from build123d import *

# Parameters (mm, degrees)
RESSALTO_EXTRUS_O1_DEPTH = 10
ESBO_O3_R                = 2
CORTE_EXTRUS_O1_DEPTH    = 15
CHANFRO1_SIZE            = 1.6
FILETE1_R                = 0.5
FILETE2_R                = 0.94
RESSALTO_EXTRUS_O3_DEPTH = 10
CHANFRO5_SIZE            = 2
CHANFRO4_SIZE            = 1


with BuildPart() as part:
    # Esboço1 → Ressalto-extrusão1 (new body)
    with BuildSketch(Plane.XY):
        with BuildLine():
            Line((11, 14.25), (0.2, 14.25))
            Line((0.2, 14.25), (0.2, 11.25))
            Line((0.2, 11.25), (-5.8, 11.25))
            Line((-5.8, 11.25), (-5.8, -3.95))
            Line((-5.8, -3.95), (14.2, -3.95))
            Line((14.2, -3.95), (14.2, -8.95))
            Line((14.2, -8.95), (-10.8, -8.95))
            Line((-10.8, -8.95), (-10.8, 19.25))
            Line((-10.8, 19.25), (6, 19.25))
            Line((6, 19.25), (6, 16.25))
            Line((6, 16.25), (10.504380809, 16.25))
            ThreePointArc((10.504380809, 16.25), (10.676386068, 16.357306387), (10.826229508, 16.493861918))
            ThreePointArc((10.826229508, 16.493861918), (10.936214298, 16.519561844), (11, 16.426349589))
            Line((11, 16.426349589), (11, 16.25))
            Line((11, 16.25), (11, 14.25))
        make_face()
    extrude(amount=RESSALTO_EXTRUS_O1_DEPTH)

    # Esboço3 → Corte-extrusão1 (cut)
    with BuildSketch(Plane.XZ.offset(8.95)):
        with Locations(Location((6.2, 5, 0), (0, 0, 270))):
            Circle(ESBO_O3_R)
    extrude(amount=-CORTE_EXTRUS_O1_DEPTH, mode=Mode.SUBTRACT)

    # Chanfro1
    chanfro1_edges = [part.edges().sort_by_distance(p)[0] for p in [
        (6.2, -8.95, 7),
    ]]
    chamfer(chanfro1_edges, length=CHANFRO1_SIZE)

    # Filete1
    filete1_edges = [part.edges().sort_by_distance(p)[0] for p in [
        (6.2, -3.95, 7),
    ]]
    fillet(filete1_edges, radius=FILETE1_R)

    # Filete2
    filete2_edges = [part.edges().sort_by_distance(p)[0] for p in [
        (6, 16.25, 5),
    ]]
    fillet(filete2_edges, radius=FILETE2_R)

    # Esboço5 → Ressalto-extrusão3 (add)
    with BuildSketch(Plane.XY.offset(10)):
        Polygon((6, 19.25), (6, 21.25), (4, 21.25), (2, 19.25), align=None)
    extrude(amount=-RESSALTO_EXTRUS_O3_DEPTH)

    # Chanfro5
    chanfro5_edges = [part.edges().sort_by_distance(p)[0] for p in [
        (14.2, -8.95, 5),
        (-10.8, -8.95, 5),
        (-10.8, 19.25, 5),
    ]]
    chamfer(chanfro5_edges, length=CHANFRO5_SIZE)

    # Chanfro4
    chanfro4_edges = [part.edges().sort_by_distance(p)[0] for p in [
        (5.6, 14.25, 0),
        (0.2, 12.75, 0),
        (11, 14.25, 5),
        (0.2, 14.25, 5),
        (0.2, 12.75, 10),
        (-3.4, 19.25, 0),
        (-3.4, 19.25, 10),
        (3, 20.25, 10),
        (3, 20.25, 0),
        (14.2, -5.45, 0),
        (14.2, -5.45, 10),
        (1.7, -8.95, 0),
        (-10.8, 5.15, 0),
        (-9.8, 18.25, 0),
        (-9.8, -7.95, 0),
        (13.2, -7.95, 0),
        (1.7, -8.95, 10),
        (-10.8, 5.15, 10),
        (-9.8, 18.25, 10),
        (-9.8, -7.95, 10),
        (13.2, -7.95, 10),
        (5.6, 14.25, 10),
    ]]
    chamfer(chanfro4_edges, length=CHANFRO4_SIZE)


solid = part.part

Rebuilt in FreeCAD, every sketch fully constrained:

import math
import FreeCAD as App
import Part
import Sketcher
Q = App.Units.Quantity


def edges_at(feature, points):
    """Names of the edges that pass closest to the given points."""
    edges = feature.Shape.Edges
    near = lambda p: min(range(len(edges)), key=lambda i: edges[i].distToShape(Part.Vertex(*p))[0])
    return sorted({f"Edge{near(p) + 1}" for p in points})


def add_polygon(sketch, points):
    """Adds a closed chain of lines whose ends are joined by coincident constraints."""
    first, n = sketch.GeometryCount, len(points)
    for a, b in zip(points, points[1:] + points[:1]):
        sketch.addGeometry(Part.LineSegment(App.Vector(*a, 0), App.Vector(*b, 0)), False)
    for i in range(n):
        sketch.addConstraint(Sketcher.Constraint("Coincident", first + i, 2, first + (i + 1) % n, 1))

doc = App.newDocument("Part")
params = doc.addObject("Spreadsheet::Sheet", "Params")
for row, (alias, value) in enumerate([
    ("sketch1_radius", "0.1 mm"),
    ("sketch1_width", "25 mm"),
    ("sketch1_width2", "20 mm"),
    ("sketch1_width3", "6 mm"),
    ("sketch1_height", "3 mm"),
    ("pad1_length", "10 mm"),
    ("sketch2_diameter", "4 mm"),
    ("pocket1_length", "15 mm"),
    ("chamfer_size", "1.6 mm"),
    ("fillet_radius", "0.5 mm"),
    ("fillet2_radius", "0.94 mm"),
    ("sketch3_width", "2 mm"),
    ("sketch3_width2", "4 mm"),
    ("pad2_length", "10 mm"),
    ("chamfer2_size", "2 mm"),
    ("chamfer3_size", "1 mm"),
], start=1):
    params.set(f"A{row}", alias)
    params.set(f"B{row}", "=" + value)
    params.setAlias(f"B{row}", alias)

body = doc.addObject("PartDesign::Body", "Body")

# Sketch on XY plane
sketch1 = body.newObject("Sketcher::SketchObject", "Sketch")
sketch1.AttachmentSupport = (doc.getObject("XY_Plane"), [""])
sketch1.MapMode = "FlatFace"
sketch1.addGeometry(Part.LineSegment(App.Vector(0.2, 14.25, 0), App.Vector(11, 14.25, 0)), False)
sketch1.addGeometry(Part.LineSegment(App.Vector(11, 14.25, 0), App.Vector(11, 16.43, 0)), False)
sketch1.addGeometry(Part.ArcOfCircle(Part.Circle(App.Vector(10.9, 16.43, 0), App.Vector(0, 0, 1), 0.1), math.radians(0), math.radians(138)), False)
sketch1.addGeometry(Part.ArcOfCircle(Part.Circle(App.Vector(10, 17.25, 0), App.Vector(0, 0, 1), 1.12), math.radians(-63), math.radians(-42)), False)
sketch1.addGeometry(Part.LineSegment(App.Vector(10.5, 16.25, 0), App.Vector(6, 16.25, 0)), False)
sketch1.addGeometry(Part.LineSegment(App.Vector(6, 16.25, 0), App.Vector(6, 19.25, 0)), False)
sketch1.addGeometry(Part.LineSegment(App.Vector(6, 19.25, 0), App.Vector(-10.8, 19.25, 0)), False)
sketch1.addGeometry(Part.LineSegment(App.Vector(-10.8, 19.25, 0), App.Vector(-10.8, -8.95, 0)), False)
sketch1.addGeometry(Part.LineSegment(App.Vector(-10.8, -8.95, 0), App.Vector(14.2, -8.95, 0)), False)
sketch1.addGeometry(Part.LineSegment(App.Vector(14.2, -8.95, 0), App.Vector(14.2, -3.95, 0)), False)
sketch1.addGeometry(Part.LineSegment(App.Vector(14.2, -3.95, 0), App.Vector(-5.8, -3.95, 0)), False)
sketch1.addGeometry(Part.LineSegment(App.Vector(-5.8, -3.95, 0), App.Vector(-5.8, 11.25, 0)), False)
sketch1.addGeometry(Part.LineSegment(App.Vector(-5.8, 11.25, 0), App.Vector(0.2, 11.25, 0)), False)
sketch1.addGeometry(Part.LineSegment(App.Vector(0.2, 11.25, 0), App.Vector(0.2, 14.25, 0)), False)
sketch1.addConstraint(Sketcher.Constraint("Coincident", 0, 2, 1, 1))
sketch1.addConstraint(Sketcher.Constraint("Tangent", 1, 2, 2, 1))
sketch1.addConstraint(Sketcher.Constraint("Tangent", 2, 2, 3, 2))
sketch1.addConstraint(Sketcher.Constraint("Coincident", 3, 1, 4, 1))
sketch1.addConstraint(Sketcher.Constraint("Coincident", 4, 2, 5, 1))
sketch1.addConstraint(Sketcher.Constraint("Coincident", 5, 2, 6, 1))
sketch1.addConstraint(Sketcher.Constraint("Coincident", 6, 2, 7, 1))
sketch1.addConstraint(Sketcher.Constraint("Coincident", 7, 2, 8, 1))
sketch1.addConstraint(Sketcher.Constraint("Coincident", 8, 2, 9, 1))
sketch1.addConstraint(Sketcher.Constraint("Coincident", 9, 2, 10, 1))
sketch1.addConstraint(Sketcher.Constraint("Coincident", 10, 2, 11, 1))
sketch1.addConstraint(Sketcher.Constraint("Coincident", 11, 2, 12, 1))
sketch1.addConstraint(Sketcher.Constraint("Coincident", 12, 2, 13, 1))
sketch1.addConstraint(Sketcher.Constraint("Coincident", 13, 2, 0, 1))
sketch1.addConstraint(Sketcher.Constraint("Horizontal", 0))
sketch1.addConstraint(Sketcher.Constraint("Vertical", 1))
sketch1.addConstraint(Sketcher.Constraint("Horizontal", 4))
sketch1.addConstraint(Sketcher.Constraint("Vertical", 5))
sketch1.addConstraint(Sketcher.Constraint("Horizontal", 6))
sketch1.addConstraint(Sketcher.Constraint("Vertical", 7))
sketch1.addConstraint(Sketcher.Constraint("Horizontal", 8))
sketch1.addConstraint(Sketcher.Constraint("Vertical", 9))
sketch1.addConstraint(Sketcher.Constraint("Horizontal", 10))
sketch1.addConstraint(Sketcher.Constraint("Vertical", 11))
sketch1.addConstraint(Sketcher.Constraint("Horizontal", 12))
sketch1.addConstraint(Sketcher.Constraint("Vertical", 13))
sketch1.addConstraint(Sketcher.Constraint("Equal", 5, 13))
sketch1.addConstraint(Sketcher.Constraint("Radius", 2, Q("0.1 mm")))
sketch1.addConstraint(Sketcher.Constraint("DistanceX", 8, 1, 8, 2, Q("25 mm")))
sketch1.addConstraint(Sketcher.Constraint("DistanceX", 10, 2, 10, 1, Q("20 mm")))
sketch1.addConstraint(Sketcher.Constraint("DistanceX", 12, 1, 12, 2, Q("6 mm")))
sketch1.addConstraint(Sketcher.Constraint("DistanceY", 5, 1, 5, 2, Q("3 mm")))
sketch1.addConstraint(Sketcher.Constraint("DistanceY", 9, 1, 9, 2, Q("5 mm")))
sketch1.addConstraint(Sketcher.Constraint("Radius", 3, Q("1.12 mm")))
sketch1.addConstraint(Sketcher.Constraint("DistanceX", 0, 1, 0, 2, Q("10.8 mm")))
sketch1.addConstraint(Sketcher.Constraint("DistanceX", 6, 2, 6, 1, Q("16.8 mm")))
sketch1.addConstraint(Sketcher.Constraint("DistanceY", 7, 2, 7, 1, Q("28.2 mm")))
sketch1.addConstraint(Sketcher.Constraint("DistanceY", 11, 1, 11, 2, Q("15.2 mm")))
sketch1.addConstraint(Sketcher.Constraint("DistanceX", -1, 1, 3, 3, Q("10 mm")))
sketch1.addConstraint(Sketcher.Constraint("DistanceX", -1, 1, 0, 2, Q("11 mm")))
sketch1.addConstraint(Sketcher.Constraint("DistanceY", 0, 2, 3, 3, Q("3 mm")))
sketch1.addConstraint(Sketcher.Constraint("DistanceY", -1, 1, 3, 3, Q("17.25 mm")))
sketch1.setExpression("Constraints[27]", "Params.sketch1_radius")
sketch1.setExpression("Constraints[28]", "Params.sketch1_width")
sketch1.setExpression("Constraints[29]", "Params.sketch1_width2")
sketch1.setExpression("Constraints[30]", "Params.sketch1_width3")
sketch1.setExpression("Constraints[31]", "Params.sketch1_height")
pad1 = body.newObject("PartDesign::Pad", "Pad")
pad1.Profile = sketch1
pad1.setExpression("Length", "Params.pad1_length")

# Sketch on XZ plane
sketch2 = body.newObject("Sketcher::SketchObject", "Sketch001")
sketch2.AttachmentSupport = (doc.getObject("XZ_Plane"), [""])
sketch2.MapMode = "FlatFace"
sketch2.AttachmentOffset = App.Placement(App.Vector(0, 0, 8.95), App.Rotation())
sketch2.addGeometry(Part.Circle(App.Vector(6.2, 5, 0), App.Vector(0, 0, 1), 2), False)
sketch2.addConstraint(Sketcher.Constraint("Diameter", 0, Q("4 mm")))
sketch2.addConstraint(Sketcher.Constraint("DistanceY", -1, 1, 0, 3, Q("5 mm")))
sketch2.addConstraint(Sketcher.Constraint("DistanceX", -1, 1, 0, 3, Q("6.2 mm")))
sketch2.setExpression("Constraints[0]", "Params.sketch2_diameter")
pocket1 = body.newObject("PartDesign::Pocket", "Pocket")
pocket1.Profile = sketch2
pocket1.setExpression("Length", "Params.pocket1_length")
doc.recompute()

chamfer = body.newObject("PartDesign::Chamfer", "Chamfer")
chamfer.Base = (pocket1, edges_at(pocket1, [(6.2, -8.95, 7)]))
chamfer.setExpression("Size", "Params.chamfer_size")
doc.recompute()

fillet = body.newObject("PartDesign::Fillet", "Fillet")
fillet.Base = (chamfer, edges_at(chamfer, [(6.2, -3.95, 7)]))
fillet.setExpression("Radius", "Params.fillet_radius")
doc.recompute()

fillet2 = body.newObject("PartDesign::Fillet", "Fillet001")
fillet2.Base = (fillet, edges_at(fillet, [(6, 16.25, 5)]))
fillet2.setExpression("Radius", "Params.fillet2_radius")

# Sketch on XY plane
sketch3 = body.newObject("Sketcher::SketchObject", "Sketch002")
sketch3.AttachmentSupport = (doc.getObject("XY_Plane"), [""])
sketch3.MapMode = "FlatFace"
sketch3.AttachmentOffset = App.Placement(App.Vector(0, 0, 10), App.Rotation())
add_polygon(sketch3, [(6, 19.2), (6, 21.2), (4, 21.2), (2, 19.2)])  # lines 0-3
sketch3.addConstraint(Sketcher.Constraint("Vertical", 0))
sketch3.addConstraint(Sketcher.Constraint("Horizontal", 1))
sketch3.addConstraint(Sketcher.Constraint("Horizontal", 3))
sketch3.addConstraint(Sketcher.Constraint("Equal", 1, 0))
sketch3.addConstraint(Sketcher.Constraint("DistanceX", 1, 2, 1, 1, Q("2 mm")))
sketch3.addConstraint(Sketcher.Constraint("DistanceX", 3, 1, 3, 2, Q("4 mm")))
sketch3.addConstraint(Sketcher.Constraint("DistanceX", -1, 1, 0, 2, Q("6 mm")))
sketch3.addConstraint(Sketcher.Constraint("DistanceY", -1, 1, 0, 2, Q("21.25 mm")))
sketch3.setExpression("Constraints[8]", "Params.sketch3_width")
sketch3.setExpression("Constraints[9]", "Params.sketch3_width2")
pad2 = body.newObject("PartDesign::Pad", "Pad001")
pad2.Profile = sketch3
pad2.setExpression("Length", "Params.pad2_length")
pad2.Reversed = True
doc.recompute()

chamfer2 = body.newObject("PartDesign::Chamfer", "Chamfer001")
chamfer2.Base = (pad2, edges_at(pad2, [(14.2, -8.95, 5), (-10.8, -8.95, 5), (-10.8, 19.25, 5)]))
chamfer2.setExpression("Size", "Params.chamfer2_size")
doc.recompute()

chamfer3 = body.newObject("PartDesign::Chamfer", "Chamfer002")
chamfer3.Base = (chamfer2, edges_at(chamfer2, [
    (5.6, 14.25, 0),
    (0.2, 12.75, 0),
    (11, 14.25, 5),
    (0.2, 14.25, 5),
    (0.2, 12.75, 10),
    (-3.4, 19.25, 0),
    (-3.4, 19.25, 10),
    (3, 20.25, 10),
    (3, 20.25, 0),
    (14.2, -5.45, 0),
    (14.2, -5.45, 10),
    (1.7, -8.95, 0),
    (-10.8, 5.15, 0),
    (-9.8, 18.25, 0),
    (-9.8, -7.95, 0),
    (13.2, -7.95, 0),
    (1.7, -8.95, 10),
    (-10.8, 5.15, 10),
    (-9.8, 18.25, 10),
    (-9.8, -7.95, 10),
    (13.2, -7.95, 10),
    (5.6, 14.25, 10),
]))
chamfer3.setExpression("Size", "Params.chamfer3_size")

doc.recompute()
